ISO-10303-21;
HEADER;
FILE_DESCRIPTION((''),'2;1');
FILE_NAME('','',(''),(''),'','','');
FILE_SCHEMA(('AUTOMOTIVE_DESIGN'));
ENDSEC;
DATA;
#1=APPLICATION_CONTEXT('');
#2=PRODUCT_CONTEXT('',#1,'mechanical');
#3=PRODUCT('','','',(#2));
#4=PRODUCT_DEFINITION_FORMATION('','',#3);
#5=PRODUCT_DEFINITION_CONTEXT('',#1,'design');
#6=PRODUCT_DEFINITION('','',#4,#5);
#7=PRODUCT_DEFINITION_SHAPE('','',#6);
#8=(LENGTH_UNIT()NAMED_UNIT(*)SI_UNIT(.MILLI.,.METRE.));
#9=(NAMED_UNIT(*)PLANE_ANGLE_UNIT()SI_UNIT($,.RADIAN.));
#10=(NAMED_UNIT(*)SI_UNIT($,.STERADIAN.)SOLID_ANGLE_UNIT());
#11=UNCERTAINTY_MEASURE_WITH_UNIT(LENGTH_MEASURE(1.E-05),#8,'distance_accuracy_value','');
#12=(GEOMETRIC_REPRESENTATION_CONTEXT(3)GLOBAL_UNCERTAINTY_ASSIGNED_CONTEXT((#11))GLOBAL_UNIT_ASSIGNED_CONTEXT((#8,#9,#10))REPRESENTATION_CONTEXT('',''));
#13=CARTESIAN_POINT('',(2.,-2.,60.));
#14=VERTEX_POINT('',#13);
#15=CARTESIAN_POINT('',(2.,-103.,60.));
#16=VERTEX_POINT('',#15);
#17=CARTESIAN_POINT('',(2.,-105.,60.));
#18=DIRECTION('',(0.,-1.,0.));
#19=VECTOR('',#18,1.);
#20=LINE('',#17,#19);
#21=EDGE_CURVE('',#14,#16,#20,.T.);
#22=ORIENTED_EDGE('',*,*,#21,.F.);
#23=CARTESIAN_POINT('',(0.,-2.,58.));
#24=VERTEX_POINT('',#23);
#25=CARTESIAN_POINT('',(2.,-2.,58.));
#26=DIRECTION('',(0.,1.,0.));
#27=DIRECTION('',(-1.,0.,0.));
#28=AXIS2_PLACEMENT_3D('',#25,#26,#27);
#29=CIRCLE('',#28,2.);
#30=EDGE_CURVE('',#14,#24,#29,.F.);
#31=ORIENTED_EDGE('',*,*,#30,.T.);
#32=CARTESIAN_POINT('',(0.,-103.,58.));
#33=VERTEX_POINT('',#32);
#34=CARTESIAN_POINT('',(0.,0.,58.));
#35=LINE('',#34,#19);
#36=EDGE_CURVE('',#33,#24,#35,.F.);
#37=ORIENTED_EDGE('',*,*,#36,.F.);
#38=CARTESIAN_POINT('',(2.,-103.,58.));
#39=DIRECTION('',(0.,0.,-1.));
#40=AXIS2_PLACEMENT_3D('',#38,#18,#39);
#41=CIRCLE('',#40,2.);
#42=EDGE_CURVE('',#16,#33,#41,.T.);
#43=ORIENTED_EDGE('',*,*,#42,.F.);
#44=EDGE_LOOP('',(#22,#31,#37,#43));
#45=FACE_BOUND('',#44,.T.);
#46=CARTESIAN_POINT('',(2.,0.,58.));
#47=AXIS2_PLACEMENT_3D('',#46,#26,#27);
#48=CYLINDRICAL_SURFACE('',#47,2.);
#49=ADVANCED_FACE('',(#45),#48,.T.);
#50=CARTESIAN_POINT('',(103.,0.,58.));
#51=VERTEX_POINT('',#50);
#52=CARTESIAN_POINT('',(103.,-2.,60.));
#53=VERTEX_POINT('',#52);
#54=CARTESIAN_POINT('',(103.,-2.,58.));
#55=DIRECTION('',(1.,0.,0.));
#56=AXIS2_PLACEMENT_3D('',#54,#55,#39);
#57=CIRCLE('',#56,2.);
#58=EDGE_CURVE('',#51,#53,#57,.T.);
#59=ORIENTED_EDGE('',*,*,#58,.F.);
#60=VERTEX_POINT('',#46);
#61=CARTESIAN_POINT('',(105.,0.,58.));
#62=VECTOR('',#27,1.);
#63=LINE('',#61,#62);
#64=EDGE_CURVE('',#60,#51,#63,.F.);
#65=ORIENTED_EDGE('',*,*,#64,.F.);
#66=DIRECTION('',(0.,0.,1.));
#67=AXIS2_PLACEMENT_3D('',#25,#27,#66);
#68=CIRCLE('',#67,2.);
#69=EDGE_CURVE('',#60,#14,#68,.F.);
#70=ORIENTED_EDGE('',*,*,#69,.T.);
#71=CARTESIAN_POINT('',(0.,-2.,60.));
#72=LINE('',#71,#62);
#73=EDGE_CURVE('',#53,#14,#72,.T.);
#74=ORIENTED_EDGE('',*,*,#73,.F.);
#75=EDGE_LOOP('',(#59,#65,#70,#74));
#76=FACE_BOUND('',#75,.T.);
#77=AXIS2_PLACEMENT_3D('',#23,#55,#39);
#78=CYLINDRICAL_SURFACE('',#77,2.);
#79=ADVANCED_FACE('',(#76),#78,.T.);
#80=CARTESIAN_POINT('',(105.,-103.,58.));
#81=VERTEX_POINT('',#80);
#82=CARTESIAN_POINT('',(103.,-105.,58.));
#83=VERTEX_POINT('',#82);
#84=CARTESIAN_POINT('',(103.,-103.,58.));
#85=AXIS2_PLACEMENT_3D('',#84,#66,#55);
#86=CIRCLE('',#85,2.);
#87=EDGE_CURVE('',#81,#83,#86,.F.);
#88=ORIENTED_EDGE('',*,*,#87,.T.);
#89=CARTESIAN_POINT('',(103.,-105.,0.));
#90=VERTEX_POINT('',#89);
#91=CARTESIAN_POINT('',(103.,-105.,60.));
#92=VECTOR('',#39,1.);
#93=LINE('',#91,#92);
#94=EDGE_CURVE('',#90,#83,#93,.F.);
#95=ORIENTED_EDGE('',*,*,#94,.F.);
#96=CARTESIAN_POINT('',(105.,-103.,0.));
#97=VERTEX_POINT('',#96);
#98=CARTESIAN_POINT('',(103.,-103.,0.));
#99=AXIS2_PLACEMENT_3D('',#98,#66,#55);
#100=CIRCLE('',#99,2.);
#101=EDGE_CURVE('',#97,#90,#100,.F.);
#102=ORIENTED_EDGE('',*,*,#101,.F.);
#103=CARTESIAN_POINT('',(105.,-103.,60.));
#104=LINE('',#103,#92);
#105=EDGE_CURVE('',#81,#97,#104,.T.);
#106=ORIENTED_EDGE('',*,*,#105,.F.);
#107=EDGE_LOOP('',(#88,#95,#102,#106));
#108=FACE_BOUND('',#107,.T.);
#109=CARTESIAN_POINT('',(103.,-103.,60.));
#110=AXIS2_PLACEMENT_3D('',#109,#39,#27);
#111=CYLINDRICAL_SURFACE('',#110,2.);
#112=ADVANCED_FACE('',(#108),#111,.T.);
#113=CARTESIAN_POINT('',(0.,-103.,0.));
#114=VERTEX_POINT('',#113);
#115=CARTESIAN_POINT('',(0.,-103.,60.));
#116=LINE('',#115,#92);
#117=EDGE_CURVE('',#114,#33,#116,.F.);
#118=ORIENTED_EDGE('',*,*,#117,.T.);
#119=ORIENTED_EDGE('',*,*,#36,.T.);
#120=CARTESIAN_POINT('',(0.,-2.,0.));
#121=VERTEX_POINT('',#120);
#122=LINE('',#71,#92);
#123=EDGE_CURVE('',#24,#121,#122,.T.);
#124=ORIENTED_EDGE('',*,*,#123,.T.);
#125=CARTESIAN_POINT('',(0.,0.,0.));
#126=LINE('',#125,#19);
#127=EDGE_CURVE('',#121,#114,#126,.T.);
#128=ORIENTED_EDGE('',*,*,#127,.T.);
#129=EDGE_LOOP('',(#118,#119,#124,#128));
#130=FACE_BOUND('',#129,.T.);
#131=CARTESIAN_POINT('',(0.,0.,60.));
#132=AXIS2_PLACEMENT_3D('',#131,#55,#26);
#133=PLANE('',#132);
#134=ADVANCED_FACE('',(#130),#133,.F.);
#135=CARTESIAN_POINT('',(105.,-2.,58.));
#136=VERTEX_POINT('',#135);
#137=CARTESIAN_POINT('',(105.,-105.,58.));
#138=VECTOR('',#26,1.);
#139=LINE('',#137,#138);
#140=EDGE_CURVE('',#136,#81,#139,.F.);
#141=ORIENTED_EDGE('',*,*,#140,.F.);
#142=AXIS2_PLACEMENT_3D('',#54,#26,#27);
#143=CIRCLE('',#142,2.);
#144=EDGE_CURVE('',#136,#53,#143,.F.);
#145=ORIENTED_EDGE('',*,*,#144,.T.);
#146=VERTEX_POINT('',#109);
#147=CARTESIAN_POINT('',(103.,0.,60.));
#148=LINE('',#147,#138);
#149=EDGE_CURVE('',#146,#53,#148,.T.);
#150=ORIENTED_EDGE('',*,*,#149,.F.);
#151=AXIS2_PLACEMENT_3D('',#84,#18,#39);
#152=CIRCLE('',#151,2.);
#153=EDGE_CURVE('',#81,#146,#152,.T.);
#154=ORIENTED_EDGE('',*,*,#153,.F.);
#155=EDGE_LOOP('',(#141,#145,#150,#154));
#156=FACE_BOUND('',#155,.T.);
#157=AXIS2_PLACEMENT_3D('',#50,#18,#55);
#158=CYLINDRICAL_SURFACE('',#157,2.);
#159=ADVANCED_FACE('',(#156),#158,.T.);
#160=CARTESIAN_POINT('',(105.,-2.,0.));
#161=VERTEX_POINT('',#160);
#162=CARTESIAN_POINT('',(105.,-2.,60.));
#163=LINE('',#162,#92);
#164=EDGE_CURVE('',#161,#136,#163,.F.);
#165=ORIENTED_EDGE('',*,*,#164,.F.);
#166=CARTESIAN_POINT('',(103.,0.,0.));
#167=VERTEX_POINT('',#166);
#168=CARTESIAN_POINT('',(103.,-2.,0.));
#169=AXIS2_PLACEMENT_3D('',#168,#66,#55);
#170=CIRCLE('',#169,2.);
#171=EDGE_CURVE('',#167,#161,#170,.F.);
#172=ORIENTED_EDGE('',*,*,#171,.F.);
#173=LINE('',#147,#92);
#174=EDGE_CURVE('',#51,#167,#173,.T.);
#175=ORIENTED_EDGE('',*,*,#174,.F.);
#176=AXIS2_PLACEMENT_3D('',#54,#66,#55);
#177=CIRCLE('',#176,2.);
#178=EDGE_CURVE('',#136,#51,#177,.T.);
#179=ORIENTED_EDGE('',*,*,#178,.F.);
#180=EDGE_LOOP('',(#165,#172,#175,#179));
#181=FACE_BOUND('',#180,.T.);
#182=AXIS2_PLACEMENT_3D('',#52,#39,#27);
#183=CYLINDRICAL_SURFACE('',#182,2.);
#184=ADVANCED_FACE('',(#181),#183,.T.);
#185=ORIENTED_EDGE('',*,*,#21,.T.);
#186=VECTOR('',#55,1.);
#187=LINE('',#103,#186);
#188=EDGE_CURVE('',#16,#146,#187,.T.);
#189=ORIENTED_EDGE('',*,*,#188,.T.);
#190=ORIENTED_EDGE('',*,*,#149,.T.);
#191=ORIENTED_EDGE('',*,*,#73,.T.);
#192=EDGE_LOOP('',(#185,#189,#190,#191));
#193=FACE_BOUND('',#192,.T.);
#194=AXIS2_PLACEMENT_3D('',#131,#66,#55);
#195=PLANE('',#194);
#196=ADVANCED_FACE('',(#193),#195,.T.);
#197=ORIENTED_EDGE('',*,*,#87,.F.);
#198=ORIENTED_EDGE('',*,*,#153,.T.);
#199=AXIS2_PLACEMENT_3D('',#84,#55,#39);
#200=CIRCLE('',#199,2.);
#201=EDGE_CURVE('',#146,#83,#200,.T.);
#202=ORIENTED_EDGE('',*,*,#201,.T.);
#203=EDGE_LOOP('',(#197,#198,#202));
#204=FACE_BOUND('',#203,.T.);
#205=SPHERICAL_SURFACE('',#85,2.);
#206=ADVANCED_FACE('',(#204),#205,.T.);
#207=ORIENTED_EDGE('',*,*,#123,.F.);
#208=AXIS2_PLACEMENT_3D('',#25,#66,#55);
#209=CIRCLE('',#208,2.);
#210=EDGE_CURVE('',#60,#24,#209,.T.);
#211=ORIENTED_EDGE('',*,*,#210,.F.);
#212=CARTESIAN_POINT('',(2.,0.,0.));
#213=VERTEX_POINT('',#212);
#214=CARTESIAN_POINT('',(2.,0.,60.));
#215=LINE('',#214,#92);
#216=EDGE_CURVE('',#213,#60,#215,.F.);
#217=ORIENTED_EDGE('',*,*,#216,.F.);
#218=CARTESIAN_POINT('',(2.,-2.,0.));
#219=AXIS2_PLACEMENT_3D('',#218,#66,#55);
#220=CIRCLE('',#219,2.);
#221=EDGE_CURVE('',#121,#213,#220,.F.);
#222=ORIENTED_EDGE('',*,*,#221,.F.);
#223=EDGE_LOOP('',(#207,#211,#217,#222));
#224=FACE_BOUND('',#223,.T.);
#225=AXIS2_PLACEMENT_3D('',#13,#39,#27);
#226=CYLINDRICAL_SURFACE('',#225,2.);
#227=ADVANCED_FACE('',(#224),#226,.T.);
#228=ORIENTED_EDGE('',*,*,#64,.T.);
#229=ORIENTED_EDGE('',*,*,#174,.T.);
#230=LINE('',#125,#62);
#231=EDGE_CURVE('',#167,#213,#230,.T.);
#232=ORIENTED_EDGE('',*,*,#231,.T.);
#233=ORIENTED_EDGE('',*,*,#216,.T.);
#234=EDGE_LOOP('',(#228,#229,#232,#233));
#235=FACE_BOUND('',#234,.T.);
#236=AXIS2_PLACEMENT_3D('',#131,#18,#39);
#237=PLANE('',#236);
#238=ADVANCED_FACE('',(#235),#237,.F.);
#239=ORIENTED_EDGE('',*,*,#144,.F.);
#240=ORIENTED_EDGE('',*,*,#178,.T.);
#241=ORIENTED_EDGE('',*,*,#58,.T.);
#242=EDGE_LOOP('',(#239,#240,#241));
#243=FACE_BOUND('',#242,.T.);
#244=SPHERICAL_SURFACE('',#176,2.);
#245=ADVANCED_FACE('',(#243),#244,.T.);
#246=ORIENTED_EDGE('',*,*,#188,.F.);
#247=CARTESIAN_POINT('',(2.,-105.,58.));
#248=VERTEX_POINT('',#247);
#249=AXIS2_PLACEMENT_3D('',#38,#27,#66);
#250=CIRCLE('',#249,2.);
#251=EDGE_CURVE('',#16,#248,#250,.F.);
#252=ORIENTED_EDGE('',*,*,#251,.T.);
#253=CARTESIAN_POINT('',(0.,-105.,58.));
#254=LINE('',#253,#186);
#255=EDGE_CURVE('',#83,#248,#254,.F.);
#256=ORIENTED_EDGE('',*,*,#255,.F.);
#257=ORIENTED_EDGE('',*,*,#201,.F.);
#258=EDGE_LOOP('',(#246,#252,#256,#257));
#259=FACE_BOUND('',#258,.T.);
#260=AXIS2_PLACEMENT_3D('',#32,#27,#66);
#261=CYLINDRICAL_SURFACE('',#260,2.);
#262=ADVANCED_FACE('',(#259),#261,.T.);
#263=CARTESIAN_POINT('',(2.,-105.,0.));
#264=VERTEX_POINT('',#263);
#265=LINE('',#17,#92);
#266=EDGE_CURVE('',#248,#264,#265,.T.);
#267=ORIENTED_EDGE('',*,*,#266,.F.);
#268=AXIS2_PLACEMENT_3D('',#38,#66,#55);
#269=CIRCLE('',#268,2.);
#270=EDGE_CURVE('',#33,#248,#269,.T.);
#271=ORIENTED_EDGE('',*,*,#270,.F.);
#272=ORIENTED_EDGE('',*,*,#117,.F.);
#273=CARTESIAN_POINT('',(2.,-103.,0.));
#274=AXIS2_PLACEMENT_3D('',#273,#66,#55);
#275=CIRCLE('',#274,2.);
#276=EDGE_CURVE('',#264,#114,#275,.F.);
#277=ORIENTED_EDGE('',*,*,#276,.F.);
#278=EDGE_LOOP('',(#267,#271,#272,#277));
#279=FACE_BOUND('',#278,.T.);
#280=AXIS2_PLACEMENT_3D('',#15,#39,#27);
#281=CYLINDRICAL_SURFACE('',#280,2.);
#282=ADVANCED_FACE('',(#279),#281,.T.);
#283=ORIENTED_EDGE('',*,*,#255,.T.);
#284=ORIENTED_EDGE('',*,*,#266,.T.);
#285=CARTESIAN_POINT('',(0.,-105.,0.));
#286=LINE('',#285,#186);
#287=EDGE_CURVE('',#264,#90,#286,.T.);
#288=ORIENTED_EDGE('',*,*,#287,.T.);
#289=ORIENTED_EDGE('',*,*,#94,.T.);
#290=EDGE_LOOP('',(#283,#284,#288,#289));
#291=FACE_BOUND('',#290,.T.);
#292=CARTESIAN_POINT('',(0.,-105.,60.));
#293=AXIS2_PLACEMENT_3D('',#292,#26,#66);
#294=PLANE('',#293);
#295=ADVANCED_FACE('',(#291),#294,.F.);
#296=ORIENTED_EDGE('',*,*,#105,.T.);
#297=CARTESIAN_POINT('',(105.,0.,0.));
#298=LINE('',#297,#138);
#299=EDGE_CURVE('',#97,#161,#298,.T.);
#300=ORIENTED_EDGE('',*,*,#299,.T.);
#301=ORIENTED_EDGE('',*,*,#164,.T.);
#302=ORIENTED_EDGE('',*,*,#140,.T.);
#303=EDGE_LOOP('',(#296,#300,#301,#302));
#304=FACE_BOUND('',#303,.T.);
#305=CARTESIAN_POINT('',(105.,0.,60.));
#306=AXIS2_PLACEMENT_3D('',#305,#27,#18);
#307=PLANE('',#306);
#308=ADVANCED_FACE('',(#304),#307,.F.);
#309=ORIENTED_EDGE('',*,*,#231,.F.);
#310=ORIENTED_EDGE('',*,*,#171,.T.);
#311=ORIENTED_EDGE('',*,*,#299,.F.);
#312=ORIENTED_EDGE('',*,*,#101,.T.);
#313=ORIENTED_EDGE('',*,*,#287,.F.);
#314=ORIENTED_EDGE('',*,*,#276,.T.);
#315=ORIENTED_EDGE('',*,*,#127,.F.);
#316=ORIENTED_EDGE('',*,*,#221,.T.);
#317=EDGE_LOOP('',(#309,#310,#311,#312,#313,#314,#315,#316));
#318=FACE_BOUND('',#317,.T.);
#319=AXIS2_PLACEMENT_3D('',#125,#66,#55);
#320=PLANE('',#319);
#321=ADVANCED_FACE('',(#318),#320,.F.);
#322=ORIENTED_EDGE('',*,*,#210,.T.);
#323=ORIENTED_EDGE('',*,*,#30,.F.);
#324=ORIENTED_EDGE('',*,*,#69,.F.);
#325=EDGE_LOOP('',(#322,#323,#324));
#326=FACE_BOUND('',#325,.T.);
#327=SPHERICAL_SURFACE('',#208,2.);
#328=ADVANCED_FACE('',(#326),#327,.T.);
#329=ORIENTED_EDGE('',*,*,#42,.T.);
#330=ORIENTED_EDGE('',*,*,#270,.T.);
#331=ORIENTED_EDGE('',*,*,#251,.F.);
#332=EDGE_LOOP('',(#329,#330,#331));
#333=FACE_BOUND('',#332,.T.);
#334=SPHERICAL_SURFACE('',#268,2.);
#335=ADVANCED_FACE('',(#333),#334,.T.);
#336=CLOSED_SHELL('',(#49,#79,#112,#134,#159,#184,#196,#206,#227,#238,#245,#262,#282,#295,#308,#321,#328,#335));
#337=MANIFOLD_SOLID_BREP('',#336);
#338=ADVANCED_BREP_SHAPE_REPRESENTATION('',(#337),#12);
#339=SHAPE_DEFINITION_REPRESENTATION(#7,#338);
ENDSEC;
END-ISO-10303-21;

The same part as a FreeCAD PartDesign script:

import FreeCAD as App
import Part
import Sketcher
from FreeCAD import Vector
Q = App.Units.Quantity


def edges_at(feature, points):
    """Names of the edges that pass closest to the given points."""
    edges = feature.Shape.Edges
    near = lambda p: min(range(len(edges)), key=lambda i: edges[i].distToShape(Part.Vertex(*p))[0])
    return sorted({f"Edge{near(p) + 1}" for p in points})


def add_polygon(sketch, points):
    """Adds a closed chain of lines whose ends are joined by coincident constraints."""
    first, n = sketch.GeometryCount, len(points)
    for a, b in zip(points, points[1:] + points[:1]):
        sketch.addGeometry(Part.LineSegment(App.Vector(*a, 0), App.Vector(*b, 0)), False)
    for i in range(n):
        sketch.addConstraint(Sketcher.Constraint("Coincident", first + i, 2, first + (i + 1) % n, 1))

doc = App.newDocument("Part")
body = doc.addObject("PartDesign::Body", "Body")

# Sketch on XY plane
sketch1 = body.newObject("Sketcher::SketchObject", "Sketch")
sketch1.AttachmentSupport = (doc.getObject("XY_Plane"), [""])
sketch1.MapMode = "FlatFace"
add_polygon(sketch1, [(0, 0), (0, -105), (105, -105), (105, 0)])  # lines 0-3
sketch1.addConstraint(Sketcher.Constraint("Vertical", 0))
sketch1.addConstraint(Sketcher.Constraint("Horizontal", 1))
sketch1.addConstraint(Sketcher.Constraint("Vertical", 2))
sketch1.addConstraint(Sketcher.Constraint("Horizontal", 3))
sketch1.addConstraint(Sketcher.Constraint("Coincident", 3, 2, -1, 1))
sketch1.addConstraint(Sketcher.Constraint("Equal", 3, 0))
sketch1.addConstraint(Sketcher.Constraint("DistanceX", 1, 1, 1, 2, Q("105 mm")))
pad1 = body.newObject("PartDesign::Pad", "Pad")
pad1.Profile = sketch1
pad1.Length = 60
doc.recompute()

fillet = body.newObject("PartDesign::Fillet", "Fillet")
fillet.Base = (pad1, edges_at(pad1, [
    (105, -52.5, 60),
    (52.5, 0, 60),
    (0, -52.5, 60),
    (52.5, -105, 60),
    (0, 0, 30),
    (105, 0, 30),
    (105, -105, 30),
    (0, -105, 30),
]))
fillet.Radius = 2

doc.recompute()
